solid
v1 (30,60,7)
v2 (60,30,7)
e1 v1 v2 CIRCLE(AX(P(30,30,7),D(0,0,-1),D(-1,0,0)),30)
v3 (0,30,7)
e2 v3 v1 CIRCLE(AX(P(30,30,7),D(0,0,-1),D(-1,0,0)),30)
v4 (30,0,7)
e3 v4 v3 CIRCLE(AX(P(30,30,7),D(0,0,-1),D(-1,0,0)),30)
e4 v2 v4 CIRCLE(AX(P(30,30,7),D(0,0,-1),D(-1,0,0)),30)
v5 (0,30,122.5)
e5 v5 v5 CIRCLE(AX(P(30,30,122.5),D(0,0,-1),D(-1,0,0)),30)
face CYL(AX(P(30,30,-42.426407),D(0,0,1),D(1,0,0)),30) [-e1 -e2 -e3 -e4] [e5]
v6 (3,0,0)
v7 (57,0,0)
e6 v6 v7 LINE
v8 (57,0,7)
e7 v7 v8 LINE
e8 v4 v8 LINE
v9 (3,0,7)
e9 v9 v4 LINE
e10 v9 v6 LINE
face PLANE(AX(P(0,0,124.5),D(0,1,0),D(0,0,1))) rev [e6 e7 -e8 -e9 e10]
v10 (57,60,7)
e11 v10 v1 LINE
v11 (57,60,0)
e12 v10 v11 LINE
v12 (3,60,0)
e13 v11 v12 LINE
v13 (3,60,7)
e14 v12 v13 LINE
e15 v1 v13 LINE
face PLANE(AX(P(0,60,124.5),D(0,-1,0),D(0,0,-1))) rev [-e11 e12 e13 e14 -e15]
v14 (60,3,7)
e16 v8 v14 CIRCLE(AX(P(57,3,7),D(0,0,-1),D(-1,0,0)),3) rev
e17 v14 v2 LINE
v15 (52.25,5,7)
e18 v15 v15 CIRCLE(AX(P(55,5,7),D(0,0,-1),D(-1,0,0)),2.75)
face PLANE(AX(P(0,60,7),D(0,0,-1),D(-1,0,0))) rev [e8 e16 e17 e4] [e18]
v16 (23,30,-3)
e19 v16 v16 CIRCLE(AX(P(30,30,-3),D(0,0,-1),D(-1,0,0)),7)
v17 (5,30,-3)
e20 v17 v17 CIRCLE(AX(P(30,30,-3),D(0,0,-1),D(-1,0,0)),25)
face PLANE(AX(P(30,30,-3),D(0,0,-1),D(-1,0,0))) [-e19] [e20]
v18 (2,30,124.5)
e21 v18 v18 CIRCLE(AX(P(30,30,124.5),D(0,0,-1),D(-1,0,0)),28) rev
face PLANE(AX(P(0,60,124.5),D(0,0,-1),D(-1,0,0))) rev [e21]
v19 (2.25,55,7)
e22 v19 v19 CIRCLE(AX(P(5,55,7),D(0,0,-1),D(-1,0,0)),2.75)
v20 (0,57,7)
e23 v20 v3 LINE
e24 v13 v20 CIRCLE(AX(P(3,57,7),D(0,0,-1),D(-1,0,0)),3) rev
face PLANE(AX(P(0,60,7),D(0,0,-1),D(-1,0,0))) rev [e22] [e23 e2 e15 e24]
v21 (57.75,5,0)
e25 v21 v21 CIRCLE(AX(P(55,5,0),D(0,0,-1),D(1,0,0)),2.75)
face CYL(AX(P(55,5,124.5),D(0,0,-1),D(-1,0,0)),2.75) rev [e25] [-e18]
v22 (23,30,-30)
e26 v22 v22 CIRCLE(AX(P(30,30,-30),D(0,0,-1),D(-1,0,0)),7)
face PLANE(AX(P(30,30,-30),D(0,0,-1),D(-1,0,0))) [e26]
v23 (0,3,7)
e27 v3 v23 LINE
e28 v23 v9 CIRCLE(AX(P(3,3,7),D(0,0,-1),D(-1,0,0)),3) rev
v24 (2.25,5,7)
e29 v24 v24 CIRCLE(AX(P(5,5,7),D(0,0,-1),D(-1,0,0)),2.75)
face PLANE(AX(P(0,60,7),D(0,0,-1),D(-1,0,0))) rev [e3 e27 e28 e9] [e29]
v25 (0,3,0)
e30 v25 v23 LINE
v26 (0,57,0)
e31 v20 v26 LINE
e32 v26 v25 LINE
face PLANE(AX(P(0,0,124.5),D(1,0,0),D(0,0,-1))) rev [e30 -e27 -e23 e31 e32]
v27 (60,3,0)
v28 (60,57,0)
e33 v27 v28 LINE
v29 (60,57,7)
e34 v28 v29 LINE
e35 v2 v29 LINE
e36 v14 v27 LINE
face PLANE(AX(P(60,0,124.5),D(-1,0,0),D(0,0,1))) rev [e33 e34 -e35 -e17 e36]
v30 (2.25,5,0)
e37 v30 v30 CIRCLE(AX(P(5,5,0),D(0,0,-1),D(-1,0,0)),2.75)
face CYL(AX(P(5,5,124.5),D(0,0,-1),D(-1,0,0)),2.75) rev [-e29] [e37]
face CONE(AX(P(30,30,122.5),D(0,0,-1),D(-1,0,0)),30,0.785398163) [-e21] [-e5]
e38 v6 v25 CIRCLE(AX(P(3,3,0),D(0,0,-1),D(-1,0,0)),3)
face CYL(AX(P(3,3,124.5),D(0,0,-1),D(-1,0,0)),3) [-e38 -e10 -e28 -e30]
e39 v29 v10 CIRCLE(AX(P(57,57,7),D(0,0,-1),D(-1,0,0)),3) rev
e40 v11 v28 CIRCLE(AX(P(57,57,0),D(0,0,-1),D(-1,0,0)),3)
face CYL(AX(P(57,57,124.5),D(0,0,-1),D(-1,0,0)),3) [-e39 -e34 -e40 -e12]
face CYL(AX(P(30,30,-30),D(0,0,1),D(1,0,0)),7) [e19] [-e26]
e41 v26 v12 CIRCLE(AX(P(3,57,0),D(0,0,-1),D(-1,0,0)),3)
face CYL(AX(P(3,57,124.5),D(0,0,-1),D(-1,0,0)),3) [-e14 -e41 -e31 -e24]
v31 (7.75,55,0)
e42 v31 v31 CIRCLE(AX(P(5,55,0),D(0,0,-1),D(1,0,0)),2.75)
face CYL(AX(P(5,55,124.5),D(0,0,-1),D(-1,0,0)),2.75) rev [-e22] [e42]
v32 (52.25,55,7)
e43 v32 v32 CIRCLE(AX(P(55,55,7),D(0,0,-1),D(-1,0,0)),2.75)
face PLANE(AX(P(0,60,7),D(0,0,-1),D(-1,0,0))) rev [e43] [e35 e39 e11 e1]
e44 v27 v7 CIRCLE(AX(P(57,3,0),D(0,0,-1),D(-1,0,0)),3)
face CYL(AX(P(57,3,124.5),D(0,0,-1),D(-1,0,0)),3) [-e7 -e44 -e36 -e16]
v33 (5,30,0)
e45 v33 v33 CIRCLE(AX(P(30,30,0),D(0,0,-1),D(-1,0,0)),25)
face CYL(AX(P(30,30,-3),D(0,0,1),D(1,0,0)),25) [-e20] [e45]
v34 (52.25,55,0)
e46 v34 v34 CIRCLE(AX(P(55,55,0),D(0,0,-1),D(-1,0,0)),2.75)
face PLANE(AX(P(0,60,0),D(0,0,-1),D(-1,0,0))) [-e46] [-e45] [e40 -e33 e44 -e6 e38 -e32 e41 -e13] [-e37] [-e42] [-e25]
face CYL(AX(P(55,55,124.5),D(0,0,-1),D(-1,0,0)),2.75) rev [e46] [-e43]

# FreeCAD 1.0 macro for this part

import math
import FreeCAD as App
import Part
import Sketcher
from FreeCAD import Vector


def edges_at(feature, points):
    """Names of the edges that pass closest to the given points."""
    edges = feature.Shape.Edges
    near = lambda p: min(range(len(edges)), key=lambda i: edges[i].distToShape(Part.Vertex(*p))[0])
    return sorted({f"Edge{near(p) + 1}" for p in points})

doc = App.newDocument("Part")
body = doc.addObject("PartDesign::Body", "Body")

# Sketch on XY plane
sketch1 = doc.addObject("Sketcher::SketchObject", "Sketch")
body.addObject(sketch1)
sketch1.AttachmentSupport = (doc.XY_Plane, [""])
sketch1.MapMode = "FlatFace"
sketch1.addGeometry([
    Part.LineSegment(Vector(0, 60, 0), Vector(0, 0, 0)),
    Part.LineSegment(Vector(0, 0, 0), Vector(60, 0, 0)),
    Part.LineSegment(Vector(60, 0, 0), Vector(60, 60, 0)),
    Part.LineSegment(Vector(60, 60, 0), Vector(0, 60, 0)),
], False)
sketch1.addConstraint([
    Sketcher.Constraint("Coincident", 0, 2, 1, 1),
    Sketcher.Constraint("Coincident", 1, 2, 2, 1),
    Sketcher.Constraint("Coincident", 2, 2, 3, 1),
    Sketcher.Constraint("Coincident", 3, 2, 0, 1),
    Sketcher.Constraint("Vertical", 0),
    Sketcher.Constraint("Horizontal", 1),
    Sketcher.Constraint("Vertical", 2),
    Sketcher.Constraint("Horizontal", 3),
    Sketcher.Constraint("Coincident", 0, 2, -1, 1),
    Sketcher.Constraint("Equal", 3, 0),
    Sketcher.Constraint("DistanceX", 1, 1, 1, 2, 60.0),
])
pad1 = doc.addObject("PartDesign::Pad", "Pad")
body.addObject(pad1)
pad1.Profile = sketch1
pad1.Length = 124.5

# Sketch on XY plane
sketch2 = doc.addObject("Sketcher::SketchObject", "Sketch001")
body.addObject(sketch2)
sketch2.AttachmentSupport = (doc.XY_Plane, [""])
sketch2.MapMode = "FlatFace"
sketch2.addGeometry(Part.Circle(Vector(30, 30, 0), Vector(0, 0, 1), 25), False)
sketch2.addConstraint([
    Sketcher.Constraint("Diameter", 0, 50.0),
    Sketcher.Constraint("DistanceX", -1, 1, 0, 3, 30.0),
    Sketcher.Constraint("DistanceY", -1, 1, 0, 3, 30.0),
])
pad2 = doc.addObject("PartDesign::Pad", "Pad001")
body.addObject(pad2)
pad2.Profile = sketch2
pad2.Length = 3
pad2.Reversed = True

# Sketch on XY plane
sketch3 = doc.addObject("Sketcher::SketchObject", "Sketch002")
body.addObject(sketch3)
sketch3.AttachmentSupport = (doc.XY_Plane, [""])
sketch3.MapMode = "FlatFace"
sketch3.AttachmentOffset = App.Placement(Vector(0, 0, -3), App.Rotation())
sketch3.addGeometry(Part.Circle(Vector(30, 30, 0), Vector(0, 0, 1), 7), False)
sketch3.addConstraint([
    Sketcher.Constraint("Diameter", 0, 14.0),
    Sketcher.Constraint("DistanceX", -1, 1, 0, 3, 30.0),
    Sketcher.Constraint("DistanceY", -1, 1, 0, 3, 30.0),
])
pad3 = doc.addObject("PartDesign::Pad", "Pad002")
body.addObject(pad3)
pad3.Profile = sketch3
pad3.Length = 27
pad3.Reversed = True
doc.recompute()

fillet = doc.addObject("PartDesign::Fillet", "Fillet")
body.addObject(fillet)
fillet.Base = (pad3, edges_at(pad3, [
    (0, 60, 62.25),
    (60, 60, 62.25),
    (60, 0, 62.25),
    (0, 0, 62.25),
]))
fillet.Radius = 3

# Sketch on XY plane
sketch4 = doc.addObject("Sketcher::SketchObject", "Sketch003")
body.addObject(sketch4)
sketch4.AttachmentSupport = (doc.XY_Plane, [""])
sketch4.MapMode = "FlatFace"
sketch4.AttachmentOffset = App.Placement(Vector(0, 0, 124.5), App.Rotation())
sketch4.addGeometry([
    Part.LineSegment(Vector(60, 3, 0), Vector(60, 30, 0)),
    Part.ArcOfCircle(Part.Circle(Vector(30, 30, 0), Vector(0, 0, 1), 30), math.radians(-90), math.radians(0)),
    Part.LineSegment(Vector(30, 0, 0), Vector(57, 0, 0)),
    Part.ArcOfCircle(Part.Circle(Vector(57, 3, 0), Vector(0, 0, 1), 3), math.radians(-90), math.radians(0)),
], False)
sketch4.addConstraint([
    Sketcher.Constraint("Tangent", 0, 2, 1, 2),
    Sketcher.Constraint("Tangent", 1, 1, 2, 1),
    Sketcher.Constraint("Tangent", 2, 2, 3, 1),
    Sketcher.Constraint("Tangent", 3, 2, 0, 1),
    Sketcher.Constraint("Vertical", 0),
    Sketcher.Constraint("Horizontal", 2),
    Sketcher.Constraint("PointOnObject", 1, 1, -1),
    Sketcher.Constraint("Radius", 1, 30.0),
    Sketcher.Constraint("Radius", 3, 3.0),
    Sketcher.Constraint("DistanceX", -1, 1, 1, 3, 30.0),
])
pocket1 = doc.addObject("PartDesign::Pocket", "Pocket")
body.addObject(pocket1)
pocket1.Profile = sketch4
pocket1.Length = 117.5
doc.recompute()

datumline = doc.addObject("PartDesign::Line", "DatumLine")
body.addObject(datumline)
datumline.Placement = App.Placement(Vector(30, 30, 0), App.Rotation(Vector(0, 0, 1), Vector(0, 0, 1)))
polarpattern = doc.addObject("PartDesign::PolarPattern", "PolarPattern")
body.addObject(polarpattern)
polarpattern.Originals = [pocket1]
polarpattern.Axis = (datumline, [""])
polarpattern.Angle = 360
polarpattern.Occurrences = 4
body.Tip = polarpattern
doc.recompute()

chamfer = doc.addObject("PartDesign::Chamfer", "Chamfer")
body.addObject(chamfer)
chamfer.Base = (polarpattern, edges_at(polarpattern, [(30, 60, 124.5)]))
chamfer.Size = 2

# Sketch on XY plane
sketch5 = doc.addObject("Sketcher::SketchObject", "Sketch004")
body.addObject(sketch5)
sketch5.AttachmentSupport = (doc.XY_Plane, [""])
sketch5.MapMode = "FlatFace"
sketch5.addGeometry([
    Part.Circle(Vector(5, 5, 0), Vector(0, 0, 1), 2.8),
    Part.Circle(Vector(55, 5, 0), Vector(0, 0, 1), 2.8),
    Part.Circle(Vector(5, 55, 0), Vector(0, 0, 1), 2.8),
    Part.Circle(Vector(55, 55, 0), Vector(0, 0, 1), 2.8),
], False)
sketch5.addConstraint([
    Sketcher.Constraint("Equal", 0, 1),
    Sketcher.Constraint("Equal", 1, 2),
    Sketcher.Constraint("Equal", 2, 3),
    Sketcher.Constraint("Horizontal", 0, 3, 1, 3),
    Sketcher.Constraint("Horizontal", 2, 3, 3, 3),
    Sketcher.Constraint("Vertical", 0, 3, 2, 3),
    Sketcher.Constraint("Vertical", 1, 3, 3, 3),
    Sketcher.Constraint("Diameter", 0, 5.5),
    Sketcher.Constraint("DistanceX", -1, 1, 0, 3, 5.0),
    Sketcher.Constraint("DistanceY", -1, 1, 0, 3, 5.0),
    Sketcher.Constraint("DistanceX", -1, 1, 1, 3, 55.0),
    Sketcher.Constraint("DistanceY", -1, 1, 2, 3, 55.0),
])
pocket2 = doc.addObject("PartDesign::Pocket", "Pocket001")
body.addObject(pocket2)
pocket2.Profile = sketch5
pocket2.Type = "ThroughAll"
pocket2.Reversed = True

doc.recompute()
